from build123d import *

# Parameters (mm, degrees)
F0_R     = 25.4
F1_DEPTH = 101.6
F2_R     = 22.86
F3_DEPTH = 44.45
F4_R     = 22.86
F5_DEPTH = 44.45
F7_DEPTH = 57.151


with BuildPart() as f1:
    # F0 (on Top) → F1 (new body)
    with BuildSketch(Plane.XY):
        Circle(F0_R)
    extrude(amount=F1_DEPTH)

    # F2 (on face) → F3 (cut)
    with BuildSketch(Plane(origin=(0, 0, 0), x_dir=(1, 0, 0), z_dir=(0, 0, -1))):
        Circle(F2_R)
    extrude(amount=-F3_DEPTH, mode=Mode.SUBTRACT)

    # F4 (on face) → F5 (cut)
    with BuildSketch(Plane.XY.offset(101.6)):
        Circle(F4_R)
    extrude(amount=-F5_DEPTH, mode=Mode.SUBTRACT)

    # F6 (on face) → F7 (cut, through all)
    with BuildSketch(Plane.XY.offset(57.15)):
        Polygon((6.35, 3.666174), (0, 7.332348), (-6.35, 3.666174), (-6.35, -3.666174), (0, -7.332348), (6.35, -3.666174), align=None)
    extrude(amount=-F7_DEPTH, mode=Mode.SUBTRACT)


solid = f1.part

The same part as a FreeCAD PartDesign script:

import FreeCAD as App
import Part
import Sketcher

V = App.Vector
Q = App.Units.Quantity

doc = App.newDocument("Part")
body = doc.addObject("PartDesign::Body", "Body")

# Sketch on XY plane
sketch1 = doc.addObject("Sketcher::SketchObject", "Sketch")
body.addObject(sketch1)
sketch1.AttachmentSupport = (doc.XY_Plane, [""])
sketch1.MapMode = "FlatFace"
sketch1.addGeometry(Part.Circle(V(0, 0, 0), V(0, 0, 1), 25), False)
sketch1.addConstraint(Sketcher.Constraint("Coincident", 0, 3, -1, 1))
sketch1.addConstraint(Sketcher.Constraint("Diameter", 0, Q("2 in")))
pad1 = doc.addObject("PartDesign::Pad", "Pad")
body.addObject(pad1)
pad1.Profile = sketch1
pad1.Length = Q("4 in")

# Sketch on XY plane
sketch2 = doc.addObject("Sketcher::SketchObject", "Sketch001")
body.addObject(sketch2)
sketch2.AttachmentSupport = (doc.XY_Plane, [""])
sketch2.MapMode = "FlatFace"
sketch2.addGeometry(Part.Circle(V(0, 0, 0), V(0, 0, 1), 23), False)
sketch2.addConstraint(Sketcher.Constraint("Coincident", 0, 3, -1, 1))
sketch2.addConstraint(Sketcher.Constraint("Diameter", 0, Q("1.8 in")))
pocket1 = doc.addObject("PartDesign::Pocket", "Pocket")
body.addObject(pocket1)
pocket1.Profile = sketch2
pocket1.Length = Q("1.75 in")
pocket1.Reversed = True

# Sketch on XY plane
sketch3 = doc.addObject("Sketcher::SketchObject", "Sketch002")
body.addObject(sketch3)
sketch3.AttachmentSupport = (doc.XY_Plane, [""])
sketch3.MapMode = "FlatFace"
sketch3.AttachmentOffset = App.Placement(V(0, 0, 4 * 25.4), App.Rotation())
sketch3.addGeometry(Part.Circle(V(0, 0, 0), V(0, 0, 1), 23), False)
sketch3.addConstraint(Sketcher.Constraint("Coincident", 0, 3, -1, 1))
sketch3.addConstraint(Sketcher.Constraint("Diameter", 0, Q("1.8 in")))
pocket2 = doc.addObject("PartDesign::Pocket", "Pocket001")
body.addObject(pocket2)
pocket2.Profile = sketch3
pocket2.Length = Q("1.75 in")

# Sketch on XY plane
sketch4 = doc.addObject("Sketcher::SketchObject", "Sketch003")
body.addObject(sketch4)
sketch4.AttachmentSupport = (doc.XY_Plane, [""])
sketch4.MapMode = "FlatFace"
sketch4.AttachmentOffset = App.Placement(V(0, 0, 2.25 * 25.4), App.Rotation())
sketch4.addGeometry(Part.LineSegment(V(6, 4, 0), V(0, 7, 0)), False)
sketch4.addGeometry(Part.LineSegment(V(0, 7, 0), V(-6, 4, 0)), False)
sketch4.addGeometry(Part.LineSegment(V(-6, 4, 0), V(-6, -4, 0)), False)
sketch4.addGeometry(Part.LineSegment(V(-6, -4, 0), V(0, -7, 0)), False)
sketch4.addGeometry(Part.LineSegment(V(0, -7, 0), V(6, -4, 0)), False)
sketch4.addGeometry(Part.LineSegment(V(6, -4, 0), V(6, 4, 0)), False)
sketch4.addConstraint(Sketcher.Constraint("Coincident", 0, 2, 1, 1))
sketch4.addConstraint(Sketcher.Constraint("Coincident", 1, 2, 2, 1))
sketch4.addConstraint(Sketcher.Constraint("Coincident", 2, 2, 3, 1))
sketch4.addConstraint(Sketcher.Constraint("Coincident", 3, 2, 4, 1))
sketch4.addConstraint(Sketcher.Constraint("Coincident", 4, 2, 5, 1))
sketch4.addConstraint(Sketcher.Constraint("Coincident", 5, 2, 0, 1))
sketch4.addConstraint(Sketcher.Constraint("Vertical", 2))
sketch4.addConstraint(Sketcher.Constraint("Vertical", 5))
sketch4.addConstraint(Sketcher.Constraint("Symmetric", 0, 2, 3, 2, -1, 1))
sketch4.addConstraint(Sketcher.Constraint("Symmetric", 1, 2, 4, 2, -1, 1))
sketch4.addConstraint(Sketcher.Constraint("PointOnObject", 0, 2, -2))
sketch4.addConstraint(Sketcher.Constraint("Parallel", 0, 3))
sketch4.addConstraint(Sketcher.Constraint("Horizontal", 2, 2, 4, 2))
sketch4.addConstraint(Sketcher.Constraint("Angle", 0, Q("150.000001 deg")))
sketch4.addConstraint(Sketcher.Constraint("DistanceX", 2, 2, 4, 2, Q("0.5 in")))
sketch4.addConstraint(Sketcher.Constraint("DistanceY", 2, 2, 2, 1, 7.332348))
pocket3 = doc.addObject("PartDesign::Pocket", "Pocket002")
body.addObject(pocket3)
pocket3.Profile = sketch4
pocket3.Type = "ThroughAll"

doc.recompute()
